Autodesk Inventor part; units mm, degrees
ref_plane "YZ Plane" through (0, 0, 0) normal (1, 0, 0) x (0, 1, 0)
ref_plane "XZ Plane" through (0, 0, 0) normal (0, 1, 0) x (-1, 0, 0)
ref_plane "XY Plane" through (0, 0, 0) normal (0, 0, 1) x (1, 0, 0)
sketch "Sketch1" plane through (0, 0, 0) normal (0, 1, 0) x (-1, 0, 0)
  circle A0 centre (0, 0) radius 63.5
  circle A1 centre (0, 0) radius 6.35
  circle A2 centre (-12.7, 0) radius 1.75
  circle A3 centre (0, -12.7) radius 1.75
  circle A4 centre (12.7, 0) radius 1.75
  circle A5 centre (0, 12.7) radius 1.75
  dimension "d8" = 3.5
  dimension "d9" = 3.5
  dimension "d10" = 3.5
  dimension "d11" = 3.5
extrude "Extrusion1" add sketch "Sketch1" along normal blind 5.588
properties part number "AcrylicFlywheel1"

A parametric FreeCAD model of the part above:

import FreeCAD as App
import Part
import Sketcher
Q = App.Units.Quantity

doc = App.newDocument("Part")
body = doc.addObject("PartDesign::Body", "Body")

# Sketch on XZ plane
sketch1 = body.newObject("Sketcher::SketchObject", "Sketch")
sketch1.AttachmentSupport = (doc.getObject("XZ_Plane"), [""])
sketch1.MapMode = "FlatFace"
sketch1.addGeometry([
    Part.Circle(App.Vector(0, 0, 0), App.Vector(0, 0, 1), 63.5),  # 0
    Part.Circle(App.Vector(0, -12.7, 0), App.Vector(0, 0, 1), 1.75),  # 1
    Part.Circle(App.Vector(12.7, 0, 0), App.Vector(0, 0, 1), 1.75),  # 2
    Part.Circle(App.Vector(0, 0, 0), App.Vector(0, 0, 1), 6.35),  # 3
    Part.Circle(App.Vector(-12.7, 0, 0), App.Vector(0, 0, 1), 1.75),  # 4
    Part.Circle(App.Vector(0, 12.7, 0), App.Vector(0, 0, 1), 1.75),  # 5
], False)
sketch1.addConstraint([
    Sketcher.Constraint("Coincident", 0, 3, -1, 1),
    Sketcher.Constraint("Coincident", 3, 3, -1, 1),
    Sketcher.Constraint("Equal", 1, 2),
    Sketcher.Constraint("Equal", 2, 4),
    Sketcher.Constraint("Equal", 4, 5),
    Sketcher.Constraint("Symmetric", 2, 3, 4, 3, -1, 1),
    Sketcher.Constraint("Symmetric", 1, 3, 5, 3, -1, 1),
    Sketcher.Constraint("PointOnObject", 1, 3, -2),
    Sketcher.Constraint("PointOnObject", 2, 3, -1),
    Sketcher.Constraint("Diameter", 0, Q("5 in")),
    Sketcher.Constraint("Diameter", 1, Q("0.1378 in")),
    Sketcher.Constraint("Diameter", 3, Q("0.5 in")),
    Sketcher.Constraint("DistanceX", 4, 3, 2, 3, Q("1 in")),
    Sketcher.Constraint("DistanceY", 1, 3, 5, 3, Q("1 in")),
])
pad1 = body.newObject("PartDesign::Pad", "Pad")
pad1.Profile = sketch1
pad1.Length = Q("0.22 in")
pad1.Reversed = True

doc.recompute()
